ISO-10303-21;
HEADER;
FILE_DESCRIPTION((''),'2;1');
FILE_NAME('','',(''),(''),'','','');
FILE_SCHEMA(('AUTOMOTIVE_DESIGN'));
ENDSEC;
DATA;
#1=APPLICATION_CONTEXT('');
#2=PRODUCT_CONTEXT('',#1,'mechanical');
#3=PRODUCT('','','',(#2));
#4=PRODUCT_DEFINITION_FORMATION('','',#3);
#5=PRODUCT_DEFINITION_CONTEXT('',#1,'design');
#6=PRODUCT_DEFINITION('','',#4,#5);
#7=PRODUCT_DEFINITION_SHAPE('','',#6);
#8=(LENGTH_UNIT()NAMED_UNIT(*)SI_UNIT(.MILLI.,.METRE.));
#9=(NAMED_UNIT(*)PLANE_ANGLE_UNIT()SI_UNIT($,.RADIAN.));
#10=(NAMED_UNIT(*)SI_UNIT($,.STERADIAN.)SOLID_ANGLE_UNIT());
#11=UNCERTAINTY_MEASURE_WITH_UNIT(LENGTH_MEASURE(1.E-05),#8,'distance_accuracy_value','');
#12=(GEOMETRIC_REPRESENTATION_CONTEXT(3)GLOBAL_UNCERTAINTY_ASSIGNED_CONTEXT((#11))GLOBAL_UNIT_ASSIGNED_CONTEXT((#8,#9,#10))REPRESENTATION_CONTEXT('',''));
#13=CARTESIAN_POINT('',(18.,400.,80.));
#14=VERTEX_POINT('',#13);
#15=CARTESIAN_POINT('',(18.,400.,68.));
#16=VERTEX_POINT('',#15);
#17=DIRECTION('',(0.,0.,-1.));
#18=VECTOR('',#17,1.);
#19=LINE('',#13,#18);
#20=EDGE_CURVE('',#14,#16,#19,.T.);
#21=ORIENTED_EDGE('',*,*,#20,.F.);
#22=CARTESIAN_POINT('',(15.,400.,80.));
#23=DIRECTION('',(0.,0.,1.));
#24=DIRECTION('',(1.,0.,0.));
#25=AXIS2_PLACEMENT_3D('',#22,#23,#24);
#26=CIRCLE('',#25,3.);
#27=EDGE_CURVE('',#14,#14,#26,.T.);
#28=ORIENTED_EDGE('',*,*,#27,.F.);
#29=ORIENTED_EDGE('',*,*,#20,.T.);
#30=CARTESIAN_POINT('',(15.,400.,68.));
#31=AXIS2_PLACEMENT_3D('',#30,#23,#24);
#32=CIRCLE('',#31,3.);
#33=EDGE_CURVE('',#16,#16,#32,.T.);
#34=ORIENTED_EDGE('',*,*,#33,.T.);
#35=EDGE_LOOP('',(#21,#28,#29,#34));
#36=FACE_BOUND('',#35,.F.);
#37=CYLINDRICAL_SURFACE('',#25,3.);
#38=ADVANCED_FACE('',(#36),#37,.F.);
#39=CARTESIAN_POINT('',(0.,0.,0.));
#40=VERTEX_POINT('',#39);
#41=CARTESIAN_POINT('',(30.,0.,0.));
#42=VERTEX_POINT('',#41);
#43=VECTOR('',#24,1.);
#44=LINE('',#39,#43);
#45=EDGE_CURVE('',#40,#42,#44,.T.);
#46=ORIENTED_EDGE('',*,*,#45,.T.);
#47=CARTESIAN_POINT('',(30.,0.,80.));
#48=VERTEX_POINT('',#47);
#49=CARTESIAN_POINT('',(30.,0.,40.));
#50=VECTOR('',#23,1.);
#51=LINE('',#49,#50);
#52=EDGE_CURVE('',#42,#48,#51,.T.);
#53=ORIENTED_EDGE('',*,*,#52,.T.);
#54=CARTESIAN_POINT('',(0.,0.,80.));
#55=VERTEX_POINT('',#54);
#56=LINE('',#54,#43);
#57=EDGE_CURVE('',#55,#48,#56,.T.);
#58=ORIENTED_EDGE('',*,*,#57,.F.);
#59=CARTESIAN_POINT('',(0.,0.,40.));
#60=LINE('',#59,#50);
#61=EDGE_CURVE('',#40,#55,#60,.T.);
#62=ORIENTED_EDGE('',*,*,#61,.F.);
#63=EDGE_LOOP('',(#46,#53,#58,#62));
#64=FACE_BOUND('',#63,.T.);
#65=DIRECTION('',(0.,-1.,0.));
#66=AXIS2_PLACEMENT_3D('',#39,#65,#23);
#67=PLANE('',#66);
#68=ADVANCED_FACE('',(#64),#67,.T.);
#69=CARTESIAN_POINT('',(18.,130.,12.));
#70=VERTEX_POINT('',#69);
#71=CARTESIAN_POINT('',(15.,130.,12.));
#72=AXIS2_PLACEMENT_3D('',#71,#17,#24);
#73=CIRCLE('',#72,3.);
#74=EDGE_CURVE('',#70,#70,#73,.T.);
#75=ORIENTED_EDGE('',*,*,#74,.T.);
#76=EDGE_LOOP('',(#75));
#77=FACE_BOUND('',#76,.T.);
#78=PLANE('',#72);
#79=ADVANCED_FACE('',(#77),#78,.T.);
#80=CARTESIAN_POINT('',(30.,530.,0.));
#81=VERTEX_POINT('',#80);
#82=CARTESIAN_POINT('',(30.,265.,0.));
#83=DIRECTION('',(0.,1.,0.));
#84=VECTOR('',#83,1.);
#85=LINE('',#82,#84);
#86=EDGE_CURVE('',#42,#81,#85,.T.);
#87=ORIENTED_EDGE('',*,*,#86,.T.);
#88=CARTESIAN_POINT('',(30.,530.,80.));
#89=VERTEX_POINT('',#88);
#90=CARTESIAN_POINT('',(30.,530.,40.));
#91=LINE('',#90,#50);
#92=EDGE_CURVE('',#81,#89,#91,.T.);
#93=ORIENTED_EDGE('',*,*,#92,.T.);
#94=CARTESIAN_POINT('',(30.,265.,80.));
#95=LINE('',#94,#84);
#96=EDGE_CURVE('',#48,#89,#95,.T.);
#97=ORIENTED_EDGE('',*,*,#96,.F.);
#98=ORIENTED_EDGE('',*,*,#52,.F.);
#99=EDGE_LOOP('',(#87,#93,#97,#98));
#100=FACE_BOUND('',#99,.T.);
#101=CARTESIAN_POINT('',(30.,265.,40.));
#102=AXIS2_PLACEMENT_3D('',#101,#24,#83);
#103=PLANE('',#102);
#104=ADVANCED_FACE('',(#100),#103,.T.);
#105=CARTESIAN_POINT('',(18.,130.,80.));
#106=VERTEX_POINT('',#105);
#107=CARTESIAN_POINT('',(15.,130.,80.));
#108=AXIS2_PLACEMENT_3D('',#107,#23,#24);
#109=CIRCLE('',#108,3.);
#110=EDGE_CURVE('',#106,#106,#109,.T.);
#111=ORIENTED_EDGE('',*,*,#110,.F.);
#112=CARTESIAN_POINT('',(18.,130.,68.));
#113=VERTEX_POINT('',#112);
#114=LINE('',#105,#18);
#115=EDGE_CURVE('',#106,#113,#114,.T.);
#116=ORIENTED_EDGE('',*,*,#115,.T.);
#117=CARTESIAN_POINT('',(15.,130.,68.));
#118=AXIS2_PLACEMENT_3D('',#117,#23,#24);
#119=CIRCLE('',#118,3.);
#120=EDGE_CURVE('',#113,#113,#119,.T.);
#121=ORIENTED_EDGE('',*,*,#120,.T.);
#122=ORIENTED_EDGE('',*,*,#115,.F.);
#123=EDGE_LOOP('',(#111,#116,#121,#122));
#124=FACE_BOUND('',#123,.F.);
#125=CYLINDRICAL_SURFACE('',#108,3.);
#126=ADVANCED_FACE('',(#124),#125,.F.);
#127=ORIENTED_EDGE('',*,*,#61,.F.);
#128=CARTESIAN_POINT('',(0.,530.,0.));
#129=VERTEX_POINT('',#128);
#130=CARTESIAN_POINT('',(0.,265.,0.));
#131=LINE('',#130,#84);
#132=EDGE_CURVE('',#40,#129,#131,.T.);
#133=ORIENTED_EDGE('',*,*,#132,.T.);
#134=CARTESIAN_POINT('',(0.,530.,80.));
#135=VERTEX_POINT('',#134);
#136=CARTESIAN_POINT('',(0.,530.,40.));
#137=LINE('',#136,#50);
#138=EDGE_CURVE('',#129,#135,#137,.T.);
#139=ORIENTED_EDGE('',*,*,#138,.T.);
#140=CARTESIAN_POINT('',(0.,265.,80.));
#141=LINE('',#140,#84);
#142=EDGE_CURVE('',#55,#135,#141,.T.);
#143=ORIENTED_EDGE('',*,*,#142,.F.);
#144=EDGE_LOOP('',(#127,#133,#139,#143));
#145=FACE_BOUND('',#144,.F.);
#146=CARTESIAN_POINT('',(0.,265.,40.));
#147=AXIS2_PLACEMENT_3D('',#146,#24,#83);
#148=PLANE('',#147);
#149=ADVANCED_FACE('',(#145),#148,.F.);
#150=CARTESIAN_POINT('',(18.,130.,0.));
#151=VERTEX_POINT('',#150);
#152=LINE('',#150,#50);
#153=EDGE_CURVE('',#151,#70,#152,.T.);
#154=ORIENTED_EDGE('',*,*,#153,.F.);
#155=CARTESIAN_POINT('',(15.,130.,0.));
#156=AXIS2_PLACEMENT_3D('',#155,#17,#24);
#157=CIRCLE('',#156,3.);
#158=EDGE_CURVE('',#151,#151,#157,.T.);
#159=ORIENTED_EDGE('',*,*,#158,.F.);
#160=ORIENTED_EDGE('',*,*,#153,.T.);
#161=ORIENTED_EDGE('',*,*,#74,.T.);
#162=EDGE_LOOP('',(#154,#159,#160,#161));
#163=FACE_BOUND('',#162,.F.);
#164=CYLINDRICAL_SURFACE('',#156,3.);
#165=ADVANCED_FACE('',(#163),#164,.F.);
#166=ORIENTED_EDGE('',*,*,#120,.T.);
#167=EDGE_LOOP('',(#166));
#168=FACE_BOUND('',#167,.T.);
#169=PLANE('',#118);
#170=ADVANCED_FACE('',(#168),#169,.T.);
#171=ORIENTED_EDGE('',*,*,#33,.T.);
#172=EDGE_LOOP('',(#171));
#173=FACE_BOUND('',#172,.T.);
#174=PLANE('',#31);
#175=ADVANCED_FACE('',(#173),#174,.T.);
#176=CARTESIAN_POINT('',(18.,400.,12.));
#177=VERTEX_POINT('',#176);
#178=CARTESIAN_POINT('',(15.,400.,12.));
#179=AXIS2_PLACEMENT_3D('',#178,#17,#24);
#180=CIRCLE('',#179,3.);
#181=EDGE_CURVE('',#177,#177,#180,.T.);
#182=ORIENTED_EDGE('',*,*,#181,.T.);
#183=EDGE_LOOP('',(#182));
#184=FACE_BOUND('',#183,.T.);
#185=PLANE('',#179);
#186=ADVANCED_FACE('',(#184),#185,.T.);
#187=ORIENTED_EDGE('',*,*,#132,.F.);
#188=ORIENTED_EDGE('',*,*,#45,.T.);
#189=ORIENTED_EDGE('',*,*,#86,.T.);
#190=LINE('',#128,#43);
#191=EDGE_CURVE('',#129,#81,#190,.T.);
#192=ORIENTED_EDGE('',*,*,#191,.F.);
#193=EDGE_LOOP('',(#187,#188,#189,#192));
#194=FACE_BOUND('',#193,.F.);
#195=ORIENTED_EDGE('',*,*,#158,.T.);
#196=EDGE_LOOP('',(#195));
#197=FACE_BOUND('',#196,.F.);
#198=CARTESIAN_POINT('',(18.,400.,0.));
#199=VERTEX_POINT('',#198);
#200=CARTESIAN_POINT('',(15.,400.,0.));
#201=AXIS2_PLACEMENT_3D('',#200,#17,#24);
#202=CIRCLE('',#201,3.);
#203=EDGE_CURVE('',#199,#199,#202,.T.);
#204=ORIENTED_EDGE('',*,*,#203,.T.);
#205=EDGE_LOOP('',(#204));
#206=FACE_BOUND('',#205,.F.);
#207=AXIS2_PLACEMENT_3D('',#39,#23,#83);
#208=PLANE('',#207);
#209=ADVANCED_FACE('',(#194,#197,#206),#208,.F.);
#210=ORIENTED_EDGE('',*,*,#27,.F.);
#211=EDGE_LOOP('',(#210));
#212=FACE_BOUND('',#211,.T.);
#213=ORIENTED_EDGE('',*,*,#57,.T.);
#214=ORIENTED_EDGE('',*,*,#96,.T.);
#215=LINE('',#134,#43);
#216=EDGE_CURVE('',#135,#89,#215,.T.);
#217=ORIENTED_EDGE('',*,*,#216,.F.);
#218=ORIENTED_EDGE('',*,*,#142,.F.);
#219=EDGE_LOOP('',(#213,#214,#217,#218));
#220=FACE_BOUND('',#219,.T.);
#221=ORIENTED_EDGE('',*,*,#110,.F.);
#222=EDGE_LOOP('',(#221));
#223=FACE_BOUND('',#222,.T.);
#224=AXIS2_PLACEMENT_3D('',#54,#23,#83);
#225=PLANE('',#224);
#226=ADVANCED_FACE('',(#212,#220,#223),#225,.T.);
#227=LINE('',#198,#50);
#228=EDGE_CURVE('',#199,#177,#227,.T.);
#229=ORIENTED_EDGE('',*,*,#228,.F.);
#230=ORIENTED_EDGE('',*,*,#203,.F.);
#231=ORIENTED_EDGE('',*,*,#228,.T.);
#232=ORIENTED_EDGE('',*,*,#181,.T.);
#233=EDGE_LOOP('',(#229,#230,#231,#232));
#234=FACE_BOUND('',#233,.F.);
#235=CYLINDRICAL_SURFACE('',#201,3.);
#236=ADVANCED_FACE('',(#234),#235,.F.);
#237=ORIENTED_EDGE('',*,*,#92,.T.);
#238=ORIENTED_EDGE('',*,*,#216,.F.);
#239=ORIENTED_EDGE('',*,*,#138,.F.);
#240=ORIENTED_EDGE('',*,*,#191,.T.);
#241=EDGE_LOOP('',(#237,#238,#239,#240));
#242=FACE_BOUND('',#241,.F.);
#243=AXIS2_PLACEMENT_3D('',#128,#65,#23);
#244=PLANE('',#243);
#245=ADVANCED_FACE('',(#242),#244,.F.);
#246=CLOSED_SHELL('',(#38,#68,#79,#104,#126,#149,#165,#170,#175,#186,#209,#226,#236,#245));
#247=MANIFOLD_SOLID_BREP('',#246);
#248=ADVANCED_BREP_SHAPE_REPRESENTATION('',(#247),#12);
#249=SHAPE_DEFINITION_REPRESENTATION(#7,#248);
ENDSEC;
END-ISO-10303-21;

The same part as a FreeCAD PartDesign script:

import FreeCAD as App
import Part
import Sketcher
from FreeCAD import Vector


def add_polygon(sketch, points):
    """Adds a closed chain of lines whose ends are joined by coincident constraints."""
    first, n = sketch.GeometryCount, len(points)
    for a, b in zip(points, points[1:] + points[:1]):
        sketch.addGeometry(Part.LineSegment(App.Vector(*a, 0), App.Vector(*b, 0)), False)
    for i in range(n):
        sketch.addConstraint(Sketcher.Constraint("Coincident", first + i, 2, first + (i + 1) % n, 1))

doc = App.newDocument("Part")
body = doc.addObject("PartDesign::Body", "Body")

# Sketch on YZ plane
sketch1 = body.newObject("Sketcher::SketchObject", "Sketch")
sketch1.AttachmentSupport = (doc.getObject("YZ_Plane"), [""])
sketch1.MapMode = "FlatFace"
add_polygon(sketch1, [(0, 80), (0, 0), (530, 0), (530, 80)])  # lines 0-3
sketch1.addConstraint([
    Sketcher.Constraint("Vertical", 0),
    Sketcher.Constraint("Horizontal", 1),
    Sketcher.Constraint("Vertical", 2),
    Sketcher.Constraint("Horizontal", 3),
    Sketcher.Constraint("Coincident", 0, 2, -1, 1),
    Sketcher.Constraint("DistanceX", 1, 1, 1, 2, 530.0),
    Sketcher.Constraint("DistanceY", 0, 2, 0, 1, 80.0),
])
pad1 = body.newObject("PartDesign::Pad", "Pad")
pad1.Profile = sketch1
pad1.Length = 30

# Sketch on XY plane
sketch2 = body.newObject("Sketcher::SketchObject", "Sketch001")
sketch2.AttachmentSupport = (doc.getObject("XY_Plane"), [""])
sketch2.MapMode = "FlatFace"
sketch2.addGeometry(Part.Circle(Vector(15, 130, 0), Vector(0, 0, 1), 3), False)
sketch2.addConstraint([
    Sketcher.Constraint("Diameter", 0, 6.0),
    Sketcher.Constraint("DistanceX", -1, 1, 0, 3, 15.0),
    Sketcher.Constraint("DistanceY", -1, 1, 0, 3, 130.0),
])
pocket1 = body.newObject("PartDesign::Pocket", "Pocket")
pocket1.Profile = sketch2
pocket1.Length = 12
pocket1.Reversed = True

# Sketch on XY plane
sketch3 = body.newObject("Sketcher::SketchObject", "Sketch002")
sketch3.AttachmentSupport = (doc.getObject("XY_Plane"), [""])
sketch3.MapMode = "FlatFace"
sketch3.AttachmentOffset = App.Placement(Vector(0, 0, 80), App.Rotation())
sketch3.addGeometry(Part.Circle(Vector(15, 130, 0), Vector(0, 0, 1), 3), False)
sketch3.addConstraint([
    Sketcher.Constraint("Diameter", 0, 6.0),
    Sketcher.Constraint("DistanceX", -1, 1, 0, 3, 15.0),
    Sketcher.Constraint("DistanceY", -1, 1, 0, 3, 130.0),
])
pocket2 = body.newObject("PartDesign::Pocket", "Pocket001")
pocket2.Profile = sketch3
pocket2.Length = 12

# Sketch on XY plane
sketch4 = body.newObject("Sketcher::SketchObject", "Sketch003")
sketch4.AttachmentSupport = (doc.getObject("XY_Plane"), [""])
sketch4.MapMode = "FlatFace"
sketch4.addGeometry(Part.Circle(Vector(15, 400, 0), Vector(0, 0, 1), 3), False)
sketch4.addConstraint([
    Sketcher.Constraint("Diameter", 0, 6.0),
    Sketcher.Constraint("DistanceX", -1, 1, 0, 3, 15.0),
    Sketcher.Constraint("DistanceY", -1, 1, 0, 3, 400.0),
])
pocket3 = body.newObject("PartDesign::Pocket", "Pocket002")
pocket3.Profile = sketch4
pocket3.Length = 12
pocket3.Reversed = True

# Sketch on XY plane
sketch5 = body.newObject("Sketcher::SketchObject", "Sketch004")
sketch5.AttachmentSupport = (doc.getObject("XY_Plane"), [""])
sketch5.MapMode = "FlatFace"
sketch5.AttachmentOffset = App.Placement(Vector(0, 0, 80), App.Rotation())
sketch5.addGeometry(Part.Circle(Vector(15, 400, 0), Vector(0, 0, 1), 3), False)
sketch5.addConstraint([
    Sketcher.Constraint("Diameter", 0, 6.0),
    Sketcher.Constraint("DistanceX", -1, 1, 0, 3, 15.0),
    Sketcher.Constraint("DistanceY", -1, 1, 0, 3, 400.0),
])
pocket4 = body.newObject("PartDesign::Pocket", "Pocket003")
pocket4.Profile = sketch5
pocket4.Length = 12

doc.recompute()
